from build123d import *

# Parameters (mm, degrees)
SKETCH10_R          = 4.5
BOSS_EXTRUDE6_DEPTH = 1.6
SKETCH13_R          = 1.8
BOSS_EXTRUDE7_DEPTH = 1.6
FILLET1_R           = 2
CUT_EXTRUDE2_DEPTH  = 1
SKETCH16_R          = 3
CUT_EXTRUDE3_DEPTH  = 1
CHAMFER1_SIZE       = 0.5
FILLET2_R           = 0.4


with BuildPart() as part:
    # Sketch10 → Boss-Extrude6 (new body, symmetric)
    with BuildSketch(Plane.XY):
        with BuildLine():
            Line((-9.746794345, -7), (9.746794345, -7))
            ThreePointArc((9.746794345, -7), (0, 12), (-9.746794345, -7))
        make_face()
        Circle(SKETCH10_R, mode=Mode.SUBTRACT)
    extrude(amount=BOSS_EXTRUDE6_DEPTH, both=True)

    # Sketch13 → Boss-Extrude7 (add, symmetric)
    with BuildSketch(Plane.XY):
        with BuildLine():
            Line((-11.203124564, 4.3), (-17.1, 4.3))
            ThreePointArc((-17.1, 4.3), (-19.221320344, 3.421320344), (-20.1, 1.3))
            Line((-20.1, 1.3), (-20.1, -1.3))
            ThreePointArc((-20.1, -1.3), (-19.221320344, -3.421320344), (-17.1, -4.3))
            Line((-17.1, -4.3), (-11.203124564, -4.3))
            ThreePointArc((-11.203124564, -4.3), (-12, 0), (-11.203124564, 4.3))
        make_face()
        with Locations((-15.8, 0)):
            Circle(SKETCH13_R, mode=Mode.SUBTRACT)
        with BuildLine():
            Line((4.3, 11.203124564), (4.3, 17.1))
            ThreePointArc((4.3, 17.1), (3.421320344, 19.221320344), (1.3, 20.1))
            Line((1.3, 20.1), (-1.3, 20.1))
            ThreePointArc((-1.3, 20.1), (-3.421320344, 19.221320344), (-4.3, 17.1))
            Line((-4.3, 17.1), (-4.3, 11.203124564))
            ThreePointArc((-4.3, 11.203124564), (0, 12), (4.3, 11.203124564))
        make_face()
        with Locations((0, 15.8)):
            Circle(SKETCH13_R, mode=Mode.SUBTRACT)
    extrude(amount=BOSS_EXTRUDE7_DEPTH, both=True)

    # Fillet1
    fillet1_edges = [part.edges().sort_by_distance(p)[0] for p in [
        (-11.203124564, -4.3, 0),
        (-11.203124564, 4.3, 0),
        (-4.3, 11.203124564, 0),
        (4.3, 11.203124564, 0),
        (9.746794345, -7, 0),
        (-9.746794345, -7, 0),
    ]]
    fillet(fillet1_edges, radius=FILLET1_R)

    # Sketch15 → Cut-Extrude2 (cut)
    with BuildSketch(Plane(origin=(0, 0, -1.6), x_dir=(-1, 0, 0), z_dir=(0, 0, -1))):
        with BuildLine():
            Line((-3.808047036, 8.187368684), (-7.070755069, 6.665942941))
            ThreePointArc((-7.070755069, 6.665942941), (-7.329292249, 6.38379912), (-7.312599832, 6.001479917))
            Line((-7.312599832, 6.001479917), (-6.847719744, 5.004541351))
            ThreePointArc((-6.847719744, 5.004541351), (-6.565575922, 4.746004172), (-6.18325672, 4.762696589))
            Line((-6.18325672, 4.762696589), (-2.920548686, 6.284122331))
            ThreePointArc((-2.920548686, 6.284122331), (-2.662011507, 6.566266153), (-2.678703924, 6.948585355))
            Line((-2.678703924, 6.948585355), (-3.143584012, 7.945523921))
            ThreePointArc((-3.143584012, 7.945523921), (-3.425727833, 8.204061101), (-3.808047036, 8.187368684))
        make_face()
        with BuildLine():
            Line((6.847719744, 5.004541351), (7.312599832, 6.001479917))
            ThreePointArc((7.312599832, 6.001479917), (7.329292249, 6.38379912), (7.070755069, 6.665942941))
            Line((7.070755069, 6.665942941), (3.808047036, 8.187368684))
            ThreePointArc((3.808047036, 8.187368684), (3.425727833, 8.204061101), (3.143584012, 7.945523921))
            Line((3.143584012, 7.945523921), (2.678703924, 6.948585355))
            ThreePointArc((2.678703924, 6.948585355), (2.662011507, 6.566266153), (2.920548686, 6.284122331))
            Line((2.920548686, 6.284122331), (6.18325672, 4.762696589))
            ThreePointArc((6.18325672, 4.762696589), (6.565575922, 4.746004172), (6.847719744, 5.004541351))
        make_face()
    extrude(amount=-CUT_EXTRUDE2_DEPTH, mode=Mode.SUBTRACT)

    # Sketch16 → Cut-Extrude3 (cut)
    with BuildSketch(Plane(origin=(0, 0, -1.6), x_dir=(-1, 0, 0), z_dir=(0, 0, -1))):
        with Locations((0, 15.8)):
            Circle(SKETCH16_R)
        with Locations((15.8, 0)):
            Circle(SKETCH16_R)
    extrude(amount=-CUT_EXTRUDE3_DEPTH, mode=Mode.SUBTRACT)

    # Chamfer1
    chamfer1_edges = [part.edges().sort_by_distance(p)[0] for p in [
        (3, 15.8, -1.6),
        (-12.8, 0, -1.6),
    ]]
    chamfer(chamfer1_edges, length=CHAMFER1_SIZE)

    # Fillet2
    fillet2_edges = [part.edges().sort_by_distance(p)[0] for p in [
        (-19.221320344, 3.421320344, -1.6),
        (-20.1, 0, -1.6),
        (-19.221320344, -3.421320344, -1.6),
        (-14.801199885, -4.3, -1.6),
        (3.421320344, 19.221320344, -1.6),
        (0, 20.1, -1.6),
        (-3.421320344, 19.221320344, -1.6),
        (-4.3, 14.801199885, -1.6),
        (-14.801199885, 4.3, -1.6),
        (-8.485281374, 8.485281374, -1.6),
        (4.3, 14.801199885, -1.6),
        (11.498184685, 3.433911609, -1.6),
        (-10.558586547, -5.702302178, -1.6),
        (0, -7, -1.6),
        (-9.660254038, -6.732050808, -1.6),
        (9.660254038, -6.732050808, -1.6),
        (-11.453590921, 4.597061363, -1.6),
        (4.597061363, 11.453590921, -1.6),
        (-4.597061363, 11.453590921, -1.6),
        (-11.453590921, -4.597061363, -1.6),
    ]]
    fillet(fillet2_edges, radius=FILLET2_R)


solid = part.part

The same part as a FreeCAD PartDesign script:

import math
import FreeCAD as App
import Part
import Sketcher
Q = App.Units.Quantity


def edges_at(feature, points):
    """Names of the edges that pass closest to the given points."""
    edges = feature.Shape.Edges
    near = lambda p: min(range(len(edges)), key=lambda i: edges[i].distToShape(Part.Vertex(*p))[0])
    return sorted({f"Edge{near(p) + 1}" for p in points})

doc = App.newDocument("Part")
params = doc.addObject("Spreadsheet::Sheet", "Params")
for row, (alias, value) in enumerate([
    ("sketch1_diameter", "9 mm"),
    ("sketch1_radius", "12 mm"),
    ("pad1_length", "3.2 mm"),
    ("sketch2_radius", "3 mm"),
    ("sketch2_radius2", "12 mm"),
    ("sketch2_diameter", "3.6 mm"),
    ("sketch2_width", "2.6 mm"),
    ("pad2_length", "3.2 mm"),
    ("fillet_radius", "2 mm"),
    ("sketch3_radius", "0.5 mm"),
    ("sketch3_length", "3.6 mm"),
    ("sketch3_length2", "1.1 mm"),
    ("pocket1_length", "1 mm"),
    ("sketch4_diameter", "6 mm"),
    ("pocket2_length", "1 mm"),
    ("chamfer_size", "0.5 mm"),
    ("fillet2_radius", "0.4 mm"),
], start=1):
    params.set(f"A{row}", alias)
    params.set(f"B{row}", "=" + value)
    params.setAlias(f"B{row}", alias)

body = doc.addObject("PartDesign::Body", "Body")

# Sketch on XY plane
sketch1 = body.newObject("Sketcher::SketchObject", "Sketch")
sketch1.AttachmentSupport = (doc.getObject("XY_Plane"), [""])
sketch1.MapMode = "FlatFace"
sketch1.addGeometry([
    Part.LineSegment(App.Vector(-9.7, -7, 0), App.Vector(9.7, -7, 0)),
    Part.ArcOfCircle(Part.Circle(App.Vector(0, 0, 0), App.Vector(0, 0, 1), 12), math.radians(-36), math.radians(216)),
    Part.Circle(App.Vector(0, 0, 0), App.Vector(0, 0, 1), 4.5),
], False)
sketch1.addConstraint([
    Sketcher.Constraint("Coincident", 0, 1, 1, 2),
    Sketcher.Constraint("Coincident", 1, 1, 0, 2),
    Sketcher.Constraint("Horizontal", 0),
    Sketcher.Constraint("Coincident", 1, 3, -1, 1),
    Sketcher.Constraint("Coincident", 2, 3, -1, 1),
    Sketcher.Constraint("Diameter", 2, Q("9 mm")),
    Sketcher.Constraint("Radius", 1, Q("12 mm")),
    Sketcher.Constraint("DistanceY", 0, 1, -1, 1, Q("7 mm")),
])
sketch1.setExpression("Constraints[5]", "Params.sketch1_diameter")
sketch1.setExpression("Constraints[6]", "Params.sketch1_radius")
pad1 = body.newObject("PartDesign::Pad", "Pad")
pad1.Profile = sketch1
pad1.setExpression("Length", "Params.pad1_length")
pad1.Midplane = True

# Sketch on XY plane
sketch2 = body.newObject("Sketcher::SketchObject", "Sketch001")
sketch2.AttachmentSupport = (doc.getObject("XY_Plane"), [""])
sketch2.MapMode = "FlatFace"
sketch2.addGeometry([
    Part.LineSegment(App.Vector(-11.2, 4.3, 0), App.Vector(-17.1, 4.3, 0)),  # 0
    Part.ArcOfCircle(Part.Circle(App.Vector(-17.1, 1.3, 0), App.Vector(0, 0, 1), 3), math.radians(90), math.radians(180)),  # 1
    Part.LineSegment(App.Vector(-20.1, 1.3, 0), App.Vector(-20.1, -1.3, 0)),  # 2
    Part.ArcOfCircle(Part.Circle(App.Vector(-17.1, -1.3, 0), App.Vector(0, 0, 1), 3), math.radians(180), math.radians(270)),  # 3
    Part.LineSegment(App.Vector(-17.1, -4.3, 0), App.Vector(-11.2, -4.3, 0)),  # 4
    Part.ArcOfCircle(Part.Circle(App.Vector(0, 0, 0), App.Vector(0, 0, 1), 12), math.radians(159), math.radians(201)),  # 5
    Part.Circle(App.Vector(-15.8, 0, 0), App.Vector(0, 0, 1), 1.8),  # 6
    Part.LineSegment(App.Vector(4.3, 11.2, 0), App.Vector(4.3, 17.1, 0)),  # 7
    Part.ArcOfCircle(Part.Circle(App.Vector(1.3, 17.1, 0), App.Vector(0, 0, 1), 3), math.radians(0), math.radians(90)),  # 8
    Part.LineSegment(App.Vector(1.3, 20.1, 0), App.Vector(-1.3, 20.1, 0)),  # 9
    Part.ArcOfCircle(Part.Circle(App.Vector(-1.3, 17.1, 0), App.Vector(0, 0, 1), 3), math.radians(90), math.radians(180)),  # 10
    Part.LineSegment(App.Vector(-4.3, 17.1, 0), App.Vector(-4.3, 11.2, 0)),  # 11
    Part.ArcOfCircle(Part.Circle(App.Vector(0, 0, 0), App.Vector(0, 0, 1), 12), math.radians(69), math.radians(111)),  # 12
    Part.Circle(App.Vector(0, 15.8, 0), App.Vector(0, 0, 1), 1.8),  # 13
], False)
sketch2.addConstraint([
    Sketcher.Constraint("Tangent", 0, 2, 1, 1),
    Sketcher.Constraint("Tangent", 1, 2, 2, 1),
    Sketcher.Constraint("Tangent", 2, 2, 3, 1),
    Sketcher.Constraint("Tangent", 3, 2, 4, 1),
    Sketcher.Constraint("Coincident", 4, 2, 5, 2),
    Sketcher.Constraint("Coincident", 5, 1, 0, 1),
    Sketcher.Constraint("Tangent", 7, 2, 8, 1),
    Sketcher.Constraint("Tangent", 8, 2, 9, 1),
    Sketcher.Constraint("Tangent", 9, 2, 10, 1),
    Sketcher.Constraint("Tangent", 10, 2, 11, 1),
    Sketcher.Constraint("Coincident", 11, 2, 12, 2),
    Sketcher.Constraint("Coincident", 12, 1, 7, 1),
    Sketcher.Constraint("Horizontal", 0),
    Sketcher.Constraint("Vertical", 2),
    Sketcher.Constraint("Horizontal", 4),
    Sketcher.Constraint("Vertical", 7),
    Sketcher.Constraint("Horizontal", 9),
    Sketcher.Constraint("Vertical", 11),
    Sketcher.Constraint("Coincident", 5, 3, -1, 1),
    Sketcher.Constraint("Coincident", 12, 3, -1, 1),
    Sketcher.Constraint("Equal", 1, 3),
    Sketcher.Constraint("Equal", 3, 8),
    Sketcher.Constraint("Equal", 8, 10),
    Sketcher.Constraint("Equal", 5, 12),
    Sketcher.Constraint("Equal", 6, 13),
    Sketcher.Constraint("PointOnObject", 6, 3, -1),
    Sketcher.Constraint("PointOnObject", 13, 3, -2),
    Sketcher.Constraint("Horizontal", 11, 2, 12, 1),
    Sketcher.Constraint("Vertical", 4, 2, 5, 1),
    Sketcher.Constraint("Equal", 9, 2),
    Sketcher.Constraint("Equal", 4, 7),
    Sketcher.Constraint("Radius", 1, Q("3 mm")),
    Sketcher.Constraint("Radius", 5, Q("12 mm")),
    Sketcher.Constraint("Diameter", 6, Q("3.6 mm")),
    Sketcher.Constraint("DistanceX", 9, 2, 9, 1, Q("2.6 mm")),
    Sketcher.Constraint("DistanceX", 1, 3, -1, 1, Q("17.1 mm")),
    Sketcher.Constraint("DistanceX", 6, 3, -1, 1, Q("15.8 mm")),
    Sketcher.Constraint("DistanceY", -1, 1, 13, 3, Q("15.8 mm")),
])
sketch2.setExpression("Constraints[31]", "Params.sketch2_radius")
sketch2.setExpression("Constraints[32]", "Params.sketch2_radius2")
sketch2.setExpression("Constraints[33]", "Params.sketch2_diameter")
sketch2.setExpression("Constraints[34]", "Params.sketch2_width")
pad2 = body.newObject("PartDesign::Pad", "Pad001")
pad2.Profile = sketch2
pad2.setExpression("Length", "Params.pad2_length")
pad2.Midplane = True
doc.recompute()

fillet = body.newObject("PartDesign::Fillet", "Fillet")
fillet.Base = (pad2, edges_at(pad2, [
    (-11.203, -4.3, 0),
    (-11.203, 4.3, 0),
    (-4.3, 11.203, 0),
    (4.3, 11.203, 0),
    (9.747, -7, 0),
    (-9.747, -7, 0),
]))
fillet.setExpression("Radius", "Params.fillet_radius")

# Sketch on XY plane
sketch3 = body.newObject("Sketcher::SketchObject", "Sketch002")
sketch3.AttachmentSupport = (doc.getObject("XY_Plane"), [""])
sketch3.MapMode = "FlatFace"
sketch3.AttachmentOffset = App.Placement(App.Vector(0, 0, -1.6), App.Rotation())
sketch3.addGeometry([
    Part.LineSegment(App.Vector(3.81, 8.19, 0), App.Vector(7.07, 6.67, 0)),  # 0
    Part.ArcOfCircle(Part.Circle(App.Vector(6.86, 6.21, 0), App.Vector(0, 0, 1), 0.5), math.radians(-25), math.radians(65)),  # 1
    Part.LineSegment(App.Vector(7.31, 6, 0), App.Vector(6.85, 5, 0)),  # 2
    Part.ArcOfCircle(Part.Circle(App.Vector(6.39, 5.22, 0), App.Vector(0, 0, 1), 0.5), math.radians(-115), math.radians(-25)),  # 3
    Part.LineSegment(App.Vector(6.18, 4.76, 0), App.Vector(2.92, 6.28, 0)),  # 4
    Part.ArcOfCircle(Part.Circle(App.Vector(3.13, 6.74, 0), App.Vector(0, 0, 1), 0.5), math.radians(155), math.radians(245)),  # 5
    Part.LineSegment(App.Vector(2.68, 6.95, 0), App.Vector(3.14, 7.95, 0)),  # 6
    Part.ArcOfCircle(Part.Circle(App.Vector(3.6, 7.73, 0), App.Vector(0, 0, 1), 0.5), math.radians(65), math.radians(155)),  # 7
    Part.LineSegment(App.Vector(-6.85, 5, 0), App.Vector(-7.31, 6, 0)),  # 8
    Part.ArcOfCircle(Part.Circle(App.Vector(-6.86, 6.21, 0), App.Vector(0, 0, 1), 0.5), math.radians(115), math.radians(205)),  # 9
    Part.LineSegment(App.Vector(-7.07, 6.67, 0), App.Vector(-3.81, 8.19, 0)),  # 10
    Part.ArcOfCircle(Part.Circle(App.Vector(-3.6, 7.73, 0), App.Vector(0, 0, 1), 0.5), math.radians(25), math.radians(115)),  # 11
    Part.LineSegment(App.Vector(-3.14, 7.95, 0), App.Vector(-2.68, 6.95, 0)),  # 12
    Part.ArcOfCircle(Part.Circle(App.Vector(-3.13, 6.74, 0), App.Vector(0, 0, 1), 0.5), math.radians(-65), math.radians(25)),  # 13
    Part.LineSegment(App.Vector(-2.92, 6.28, 0), App.Vector(-6.18, 4.76, 0)),  # 14
    Part.ArcOfCircle(Part.Circle(App.Vector(-6.39, 5.22, 0), App.Vector(0, 0, 1), 0.5), math.radians(-155), math.radians(-65)),  # 15
], False)
sketch3.addConstraint([
    Sketcher.Constraint("Tangent", 0, 2, 1, 2),
    Sketcher.Constraint("Tangent", 1, 1, 2, 1),
    Sketcher.Constraint("Tangent", 2, 2, 3, 2),
    Sketcher.Constraint("Tangent", 3, 1, 4, 1),
    Sketcher.Constraint("Tangent", 4, 2, 5, 2),
    Sketcher.Constraint("Tangent", 5, 1, 6, 1),
    Sketcher.Constraint("Tangent", 6, 2, 7, 2),
    Sketcher.Constraint("Tangent", 7, 1, 0, 1),
    Sketcher.Constraint("Tangent", 8, 2, 9, 2),
    Sketcher.Constraint("Tangent", 9, 1, 10, 1),
    Sketcher.Constraint("Tangent", 10, 2, 11, 2),
    Sketcher.Constraint("Tangent", 11, 1, 12, 1),
    Sketcher.Constraint("Tangent", 12, 2, 13, 2),
    Sketcher.Constraint("Tangent", 13, 1, 14, 1),
    Sketcher.Constraint("Tangent", 14, 2, 15, 2),
    Sketcher.Constraint("Tangent", 15, 1, 8, 1),
    Sketcher.Constraint("Equal", 1, 3),
    Sketcher.Constraint("Equal", 3, 5),
    Sketcher.Constraint("Equal", 5, 7),
    Sketcher.Constraint("Equal", 7, 9),
    Sketcher.Constraint("Equal", 9, 11),
    Sketcher.Constraint("Equal", 11, 13),
    Sketcher.Constraint("Equal", 13, 15),
    Sketcher.Constraint("Symmetric", 1, 3, 9, 3, -2),
    Sketcher.Constraint("Symmetric", 7, 3, 11, 3, -2),
    Sketcher.Constraint("Symmetric", 5, 3, 13, 3, -2),
    Sketcher.Constraint("Symmetric", 3, 3, 15, 3, -2),
    Sketcher.Constraint("Perpendicular", 0, 2),
    Sketcher.Constraint("Perpendicular", 2, 4),
    Sketcher.Constraint("Perpendicular", 4, 6),
    Sketcher.Constraint("Radius", 1, Q("0.5 mm")),
    Sketcher.Constraint("Angle", 0, Q("-25 deg")),
    Sketcher.Constraint("Distance", 0, Q("3.6 mm")),
    Sketcher.Constraint("Distance", 2, Q("1.1 mm")),
    Sketcher.Constraint("DistanceX", -1, 1, 1, 1, Q("7.3126 mm")),
    Sketcher.Constraint("DistanceY", -1, 1, 1, 3, Q("6.212789 mm")),
])
sketch3.setExpression("Constraints[30]", "Params.sketch3_radius")
sketch3.setExpression("Constraints[32]", "Params.sketch3_length")
sketch3.setExpression("Constraints[33]", "Params.sketch3_length2")
pocket1 = body.newObject("PartDesign::Pocket", "Pocket")
pocket1.Profile = sketch3
pocket1.setExpression("Length", "Params.pocket1_length")
pocket1.Reversed = True

# Sketch on XY plane
sketch4 = body.newObject("Sketcher::SketchObject", "Sketch003")
sketch4.AttachmentSupport = (doc.getObject("XY_Plane"), [""])
sketch4.MapMode = "FlatFace"
sketch4.AttachmentOffset = App.Placement(App.Vector(0, 0, -1.6), App.Rotation())
sketch4.addGeometry([
    Part.Circle(App.Vector(0, 15.8, 0), App.Vector(0, 0, 1), 3),
    Part.Circle(App.Vector(-15.8, 0, 0), App.Vector(0, 0, 1), 3),
], False)
sketch4.addConstraint([
    Sketcher.Constraint("Equal", 0, 1),
    Sketcher.Constraint("PointOnObject", 0, 3, -2),
    Sketcher.Constraint("PointOnObject", 1, 3, -1),
    Sketcher.Constraint("Diameter", 0, Q("6 mm")),
    Sketcher.Constraint("DistanceY", -1, 1, 0, 3, Q("15.8 mm")),
    Sketcher.Constraint("DistanceX", 1, 3, -1, 1, Q("15.8 mm")),
])
sketch4.setExpression("Constraints[3]", "Params.sketch4_diameter")
pocket2 = body.newObject("PartDesign::Pocket", "Pocket001")
pocket2.Profile = sketch4
pocket2.setExpression("Length", "Params.pocket2_length")
pocket2.Reversed = True
doc.recompute()

chamfer = body.newObject("PartDesign::Chamfer", "Chamfer")
chamfer.Base = (pocket2, edges_at(pocket2, [(3, 15.8, -1.6), (-12.8, 0, -1.6)]))
chamfer.setExpression("Size", "Params.chamfer_size")
doc.recompute()

fillet2 = body.newObject("PartDesign::Fillet", "Fillet001")
fillet2.Base = (chamfer, edges_at(chamfer, [
    (-19.221, 3.421, -1.6),
    (-20.1, 0, -1.6),
    (-19.221, -3.421, -1.6),
    (-14.801, -4.3, -1.6),
    (3.421, 19.221, -1.6),
    (0, 20.1, -1.6),
    (-3.421, 19.221, -1.6),
    (-4.3, 14.801, -1.6),
    (-14.801, 4.3, -1.6),
    (-8.485, 8.485, -1.6),
    (4.3, 14.801, -1.6),
    (11.498, 3.434, -1.6),
    (-10.559, -5.702, -1.6),
    (0, -7, -1.6),
    (-9.66, -6.732, -1.6),
    (9.66, -6.732, -1.6),
    (-11.454, 4.597, -1.6),
    (4.597, 11.454, -1.6),
    (-4.597, 11.454, -1.6),
    (-11.454, -4.597, -1.6),
]))
fillet2.setExpression("Radius", "Params.fillet2_radius")

doc.recompute()
